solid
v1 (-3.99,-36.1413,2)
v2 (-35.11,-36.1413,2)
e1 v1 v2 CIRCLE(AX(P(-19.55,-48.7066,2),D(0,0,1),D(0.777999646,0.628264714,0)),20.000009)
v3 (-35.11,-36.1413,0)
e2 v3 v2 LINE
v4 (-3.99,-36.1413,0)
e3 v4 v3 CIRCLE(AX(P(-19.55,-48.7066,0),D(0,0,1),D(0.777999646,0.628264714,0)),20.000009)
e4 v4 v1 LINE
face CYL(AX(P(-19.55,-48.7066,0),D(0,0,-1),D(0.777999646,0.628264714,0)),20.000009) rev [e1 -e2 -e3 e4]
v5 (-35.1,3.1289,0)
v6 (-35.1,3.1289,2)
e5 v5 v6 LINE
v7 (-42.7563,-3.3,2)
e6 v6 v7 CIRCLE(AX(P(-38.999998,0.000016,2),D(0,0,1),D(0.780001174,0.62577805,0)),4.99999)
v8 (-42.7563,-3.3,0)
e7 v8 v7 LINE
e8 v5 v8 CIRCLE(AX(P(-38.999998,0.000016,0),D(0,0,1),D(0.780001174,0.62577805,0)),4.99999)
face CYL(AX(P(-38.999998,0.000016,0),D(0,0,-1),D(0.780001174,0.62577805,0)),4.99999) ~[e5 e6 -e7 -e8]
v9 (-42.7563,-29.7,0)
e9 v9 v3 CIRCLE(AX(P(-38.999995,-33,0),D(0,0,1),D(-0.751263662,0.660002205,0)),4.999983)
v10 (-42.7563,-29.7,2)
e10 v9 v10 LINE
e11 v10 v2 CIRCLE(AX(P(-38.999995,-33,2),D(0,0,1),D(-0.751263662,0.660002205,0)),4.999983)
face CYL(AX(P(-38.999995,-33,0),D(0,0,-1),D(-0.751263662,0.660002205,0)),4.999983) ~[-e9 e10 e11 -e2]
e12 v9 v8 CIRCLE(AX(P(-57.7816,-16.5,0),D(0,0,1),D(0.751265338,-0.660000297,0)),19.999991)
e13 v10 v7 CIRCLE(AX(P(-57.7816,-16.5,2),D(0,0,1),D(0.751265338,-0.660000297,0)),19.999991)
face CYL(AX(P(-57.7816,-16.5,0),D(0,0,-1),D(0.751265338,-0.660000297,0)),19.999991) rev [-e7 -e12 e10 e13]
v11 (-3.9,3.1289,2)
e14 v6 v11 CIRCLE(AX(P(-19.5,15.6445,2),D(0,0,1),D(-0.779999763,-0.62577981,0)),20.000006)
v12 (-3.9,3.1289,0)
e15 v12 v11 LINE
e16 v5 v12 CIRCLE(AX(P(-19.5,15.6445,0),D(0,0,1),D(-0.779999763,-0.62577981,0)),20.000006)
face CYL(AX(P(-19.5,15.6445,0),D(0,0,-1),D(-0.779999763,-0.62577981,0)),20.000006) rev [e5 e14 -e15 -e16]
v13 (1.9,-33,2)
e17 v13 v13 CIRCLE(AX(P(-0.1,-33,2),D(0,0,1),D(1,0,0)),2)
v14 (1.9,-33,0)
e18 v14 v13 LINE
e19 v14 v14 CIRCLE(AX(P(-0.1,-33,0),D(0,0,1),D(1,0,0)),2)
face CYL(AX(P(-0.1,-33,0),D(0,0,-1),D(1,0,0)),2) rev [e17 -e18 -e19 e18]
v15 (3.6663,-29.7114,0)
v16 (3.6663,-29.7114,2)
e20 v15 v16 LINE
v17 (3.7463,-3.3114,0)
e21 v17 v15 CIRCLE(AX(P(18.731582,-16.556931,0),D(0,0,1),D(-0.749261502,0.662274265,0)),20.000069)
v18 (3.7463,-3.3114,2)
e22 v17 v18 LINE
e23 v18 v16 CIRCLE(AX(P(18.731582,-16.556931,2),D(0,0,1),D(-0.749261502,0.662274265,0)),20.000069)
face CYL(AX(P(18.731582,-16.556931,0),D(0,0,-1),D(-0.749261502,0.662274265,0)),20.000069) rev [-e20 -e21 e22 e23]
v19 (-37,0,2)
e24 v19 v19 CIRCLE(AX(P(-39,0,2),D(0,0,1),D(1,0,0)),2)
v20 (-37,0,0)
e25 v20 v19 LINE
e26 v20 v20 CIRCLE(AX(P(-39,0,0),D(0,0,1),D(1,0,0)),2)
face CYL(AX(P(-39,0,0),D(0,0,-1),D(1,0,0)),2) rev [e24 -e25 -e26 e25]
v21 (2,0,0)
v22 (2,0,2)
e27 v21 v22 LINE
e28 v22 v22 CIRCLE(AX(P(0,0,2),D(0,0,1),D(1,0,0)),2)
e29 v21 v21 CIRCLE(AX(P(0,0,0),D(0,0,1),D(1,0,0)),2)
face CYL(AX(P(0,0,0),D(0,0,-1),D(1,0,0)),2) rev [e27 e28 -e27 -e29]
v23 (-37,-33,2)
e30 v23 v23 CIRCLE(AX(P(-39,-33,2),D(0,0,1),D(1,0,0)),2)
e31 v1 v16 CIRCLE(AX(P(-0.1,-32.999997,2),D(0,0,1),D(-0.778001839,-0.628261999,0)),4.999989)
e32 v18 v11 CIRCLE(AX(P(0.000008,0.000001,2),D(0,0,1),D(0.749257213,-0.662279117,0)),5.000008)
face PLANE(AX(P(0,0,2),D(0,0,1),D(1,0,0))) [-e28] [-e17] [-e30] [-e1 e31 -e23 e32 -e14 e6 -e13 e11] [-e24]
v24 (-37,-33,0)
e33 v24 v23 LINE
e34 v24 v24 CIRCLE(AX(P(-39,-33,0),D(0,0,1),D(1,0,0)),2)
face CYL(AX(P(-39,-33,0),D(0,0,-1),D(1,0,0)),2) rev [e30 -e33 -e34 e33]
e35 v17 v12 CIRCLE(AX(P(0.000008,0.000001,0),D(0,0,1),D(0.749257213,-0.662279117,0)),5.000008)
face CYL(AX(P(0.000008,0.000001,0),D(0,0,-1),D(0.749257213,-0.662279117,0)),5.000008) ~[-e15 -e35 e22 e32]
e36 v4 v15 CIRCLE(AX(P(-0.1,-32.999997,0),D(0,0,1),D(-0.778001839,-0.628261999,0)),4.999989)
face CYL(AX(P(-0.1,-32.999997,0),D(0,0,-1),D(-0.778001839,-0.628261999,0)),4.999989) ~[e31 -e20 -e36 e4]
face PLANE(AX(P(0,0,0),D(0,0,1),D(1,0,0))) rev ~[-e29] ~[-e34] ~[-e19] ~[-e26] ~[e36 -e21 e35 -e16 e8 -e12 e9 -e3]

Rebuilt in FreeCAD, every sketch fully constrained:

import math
import FreeCAD as App
import Part
import Sketcher
from FreeCAD import Vector
Q = App.Units.Quantity

doc = App.newDocument("Part")
body = doc.addObject("PartDesign::Body", "Body")

# Sketch on XY plane
sketch1 = body.newObject("Sketcher::SketchObject", "Sketch")
sketch1.AttachmentSupport = (doc.getObject("XY_Plane"), [""])
sketch1.MapMode = "FlatFace"
sketch1.addGeometry(Part.ArcOfCircle(Part.Circle(Vector(-19.5, 15.6445, 0), Vector(0, 0, 1), 20.000006), math.radians(-141.260554), math.radians(-38.739446)), False)
sketch1.addGeometry(Part.ArcOfCircle(Part.Circle(Vector(-39, 0, 0), Vector(0, 0, 1), 5.000002), math.radians(38.739446), math.radians(221.300085)), False)
sketch1.addGeometry(Part.ArcOfCircle(Part.Circle(Vector(-57.7816, -16.5, 0), Vector(0, 0, 1), 19.999991), math.radians(-41.299895), math.radians(41.299895)), False)
sketch1.addGeometry(Part.ArcOfCircle(Part.Circle(Vector(-39, -33, 0), Vector(0, 0, 1), 4.999979), math.radians(138.699915), math.radians(321.078011)), False)
sketch1.addGeometry(Part.ArcOfCircle(Part.Circle(Vector(-19.55, -48.7066, 0), Vector(0, 0, 1), 20.000009), math.radians(38.922212), math.radians(141.077788)), False)
sketch1.addGeometry(Part.ArcOfCircle(Part.Circle(Vector(-0.1, -33, 0), Vector(0, 0, 1), 4.999987), math.radians(-141.078011), math.radians(41.126312)), False)
sketch1.addGeometry(Part.ArcOfCircle(Part.Circle(Vector(18.7315, -16.5569, 0), Vector(0, 0, 1), 19.999987), math.radians(138.526359), math.radians(221.126528)), False)
sketch1.addGeometry(Part.ArcOfCircle(Part.Circle(Vector(0, 0, 0), Vector(0, 0, 1), 5.000013), math.radians(-41.473856), math.radians(141.260554)), False)
sketch1.addGeometry(Part.Circle(Vector(-39, -33, 0), Vector(0, 0, 1), 2), False)
sketch1.addGeometry(Part.Circle(Vector(-0.1, -33, 0), Vector(0, 0, 1), 2), False)
sketch1.addGeometry(Part.Circle(Vector(-39, 0, 0), Vector(0, 0, 1), 2), False)
sketch1.addGeometry(Part.Circle(Vector(0, 0, 0), Vector(0, 0, 1), 2), False)
sketch1.addConstraint(Sketcher.Constraint("Tangent", 0, 1, 1, 1))
sketch1.addConstraint(Sketcher.Constraint("Tangent", 1, 2, 2, 2))
sketch1.addConstraint(Sketcher.Constraint("Tangent", 2, 1, 3, 1))
sketch1.addConstraint(Sketcher.Constraint("Tangent", 3, 2, 4, 2))
sketch1.addConstraint(Sketcher.Constraint("Tangent", 4, 1, 5, 1))
sketch1.addConstraint(Sketcher.Constraint("Tangent", 5, 2, 6, 2))
sketch1.addConstraint(Sketcher.Constraint("Tangent", 6, 1, 7, 1))
sketch1.addConstraint(Sketcher.Constraint("Tangent", 7, 2, 0, 2))
sketch1.addConstraint(Sketcher.Constraint("Coincident", 7, 3, -1, 1))
sketch1.addConstraint(Sketcher.Constraint("Coincident", 11, 3, -1, 1))
sketch1.addConstraint(Sketcher.Constraint("Coincident", 8, 3, 3, 3))
sketch1.addConstraint(Sketcher.Constraint("Coincident", 9, 3, 5, 3))
sketch1.addConstraint(Sketcher.Constraint("Coincident", 10, 3, 1, 3))
sketch1.addConstraint(Sketcher.Constraint("Equal", 0, 2))
sketch1.addConstraint(Sketcher.Constraint("Equal", 1, 3))
sketch1.addConstraint(Sketcher.Constraint("Equal", 2, 4))
sketch1.addConstraint(Sketcher.Constraint("Equal", 3, 5))
sketch1.addConstraint(Sketcher.Constraint("Equal", 4, 6))
sketch1.addConstraint(Sketcher.Constraint("Equal", 5, 7))
sketch1.addConstraint(Sketcher.Constraint("Equal", 8, 9))
sketch1.addConstraint(Sketcher.Constraint("Equal", 9, 10))
sketch1.addConstraint(Sketcher.Constraint("Equal", 10, 11))
sketch1.addConstraint(Sketcher.Constraint("PointOnObject", 1, 3, -1))
sketch1.addConstraint(Sketcher.Constraint("Horizontal", 3, 3, 5, 3))
sketch1.addConstraint(Sketcher.Constraint("Vertical", 1, 3, 3, 3))
sketch1.addConstraint(Sketcher.Constraint("Radius", 0, Q("20 mm")))
sketch1.addConstraint(Sketcher.Constraint("Radius", 1, Q("5 mm")))
sketch1.addConstraint(Sketcher.Constraint("Diameter", 8, Q("4 mm")))
sketch1.addConstraint(Sketcher.Constraint("DistanceX", 1, 3, -1, 1, Q("39 mm")))
sketch1.addConstraint(Sketcher.Constraint("DistanceY", 3, 3, -1, 1, Q("33 mm")))
sketch1.addConstraint(Sketcher.Constraint("DistanceX", 5, 3, -1, 1, Q("0.1 mm")))
pad1 = body.newObject("PartDesign::Pad", "Pad")
pad1.Profile = sketch1
pad1.Length = 2

doc.recompute()
